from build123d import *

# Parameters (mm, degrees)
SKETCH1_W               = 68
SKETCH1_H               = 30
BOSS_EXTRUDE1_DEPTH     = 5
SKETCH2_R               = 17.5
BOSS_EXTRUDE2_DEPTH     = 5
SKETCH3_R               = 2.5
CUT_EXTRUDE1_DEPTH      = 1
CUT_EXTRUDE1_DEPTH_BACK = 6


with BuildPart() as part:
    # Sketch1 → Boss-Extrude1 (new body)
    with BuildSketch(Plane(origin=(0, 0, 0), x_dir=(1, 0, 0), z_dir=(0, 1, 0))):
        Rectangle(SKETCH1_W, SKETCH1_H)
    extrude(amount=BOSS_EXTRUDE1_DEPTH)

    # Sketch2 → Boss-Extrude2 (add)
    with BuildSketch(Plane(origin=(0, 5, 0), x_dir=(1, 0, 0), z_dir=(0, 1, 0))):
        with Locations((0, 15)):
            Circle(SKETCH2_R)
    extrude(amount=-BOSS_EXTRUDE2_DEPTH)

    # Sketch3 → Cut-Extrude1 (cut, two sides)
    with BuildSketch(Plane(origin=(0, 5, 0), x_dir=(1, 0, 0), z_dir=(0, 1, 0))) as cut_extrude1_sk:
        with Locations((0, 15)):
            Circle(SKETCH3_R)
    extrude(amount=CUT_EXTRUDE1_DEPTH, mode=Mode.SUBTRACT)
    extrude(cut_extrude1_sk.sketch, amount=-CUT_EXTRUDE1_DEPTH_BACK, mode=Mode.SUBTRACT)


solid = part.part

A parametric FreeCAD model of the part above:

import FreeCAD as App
import Part
import Sketcher

V = App.Vector


def add_polygon(sketch, points):
    """Adds a closed chain of lines whose ends are joined by coincident constraints."""
    first, n = sketch.GeometryCount, len(points)
    for a, b in zip(points, points[1:] + points[:1]):
        sketch.addGeometry(Part.LineSegment(App.Vector(*a, 0), App.Vector(*b, 0)), False)
    for i in range(n):
        sketch.addConstraint(Sketcher.Constraint("Coincident", first + i, 2, first + (i + 1) % n, 1))

doc = App.newDocument("Part")
params = doc.addObject("Spreadsheet::Sheet", "Params")
for row, (alias, value) in enumerate([
    ("sketch1_width", "68 mm"),
    ("sketch1_height", "30 mm"),
    ("pad1_length", "5 mm"),
    ("sketch2_diameter", "35 mm"),
    ("pad2_length", "5 mm"),
    ("sketch3_diameter", "5 mm"),
], start=1):
    params.set(f"A{row}", alias)
    params.set(f"B{row}", "=" + value)
    params.setAlias(f"B{row}", alias)

body = doc.addObject("PartDesign::Body", "Body")

sketch1 = doc.addObject("Sketcher::SketchObject", "Sketch")
body.addObject(sketch1)
sketch1.AttachmentSupport = (doc.XZ_Plane, [""])
sketch1.MapMode = "FlatFace"
add_polygon(sketch1, [(-34, -15), (-34, 15), (34, 15), (34, -15)])
sketch1.addConstraint([
    Sketcher.Constraint("Vertical", 0),
    Sketcher.Constraint("Horizontal", 1),
    Sketcher.Constraint("Vertical", 2),
    Sketcher.Constraint("Horizontal", 3),
    Sketcher.Constraint("Symmetric", 0, 2, 2, 2, -1, 1),
    Sketcher.Constraint("DistanceX", 1, 1, 1, 2, 68.0),
    Sketcher.Constraint("DistanceY", 0, 1, 0, 2, 30.0),
])
sketch1.setExpression("Constraints[9]", "Params.sketch1_width")
sketch1.setExpression("Constraints[10]", "Params.sketch1_height")
pad1 = doc.addObject("PartDesign::Pad", "Pad")
body.addObject(pad1)
pad1.Profile = sketch1
pad1.setExpression("Length", "Params.pad1_length")
pad1.Reversed = True

sketch2 = doc.addObject("Sketcher::SketchObject", "Sketch001")
body.addObject(sketch2)
sketch2.AttachmentSupport = (doc.XZ_Plane, [""])
sketch2.MapMode = "FlatFace"
sketch2.AttachmentOffset = App.Placement(V(0, 0, -5), App.Rotation())
sketch2.addGeometry(Part.Circle(V(0, -15, 0), V(0, 0, 1), 17.5), False)
sketch2.addConstraint([
    Sketcher.Constraint("PointOnObject", 0, 3, -2),
    Sketcher.Constraint("Diameter", 0, 35.0),
    Sketcher.Constraint("DistanceY", 0, 3, -1, 1, 15.0),
])
sketch2.setExpression("Constraints[1]", "Params.sketch2_diameter")
pad2 = doc.addObject("PartDesign::Pad", "Pad001")
body.addObject(pad2)
pad2.Profile = sketch2
pad2.setExpression("Length", "Params.pad2_length")

sketch3 = doc.addObject("Sketcher::SketchObject", "Sketch002")
body.addObject(sketch3)
sketch3.AttachmentSupport = (doc.XZ_Plane, [""])
sketch3.MapMode = "FlatFace"
sketch3.AttachmentOffset = App.Placement(V(0, 0, -5), App.Rotation())
sketch3.addGeometry(Part.Circle(V(0, -15, 0), V(0, 0, 1), 2.5), False)
sketch3.addConstraint([
    Sketcher.Constraint("PointOnObject", 0, 3, -2),
    Sketcher.Constraint("Diameter", 0, 5.0),
    Sketcher.Constraint("DistanceY", 0, 3, -1, 1, 15.0),
])
sketch3.setExpression("Constraints[1]", "Params.sketch3_diameter")
pocket1 = doc.addObject("PartDesign::Pocket", "Pocket")
body.addObject(pocket1)
pocket1.Profile = sketch3
pocket1.Type = "ThroughAll"
pocket1.Midplane = True

doc.recompute()
